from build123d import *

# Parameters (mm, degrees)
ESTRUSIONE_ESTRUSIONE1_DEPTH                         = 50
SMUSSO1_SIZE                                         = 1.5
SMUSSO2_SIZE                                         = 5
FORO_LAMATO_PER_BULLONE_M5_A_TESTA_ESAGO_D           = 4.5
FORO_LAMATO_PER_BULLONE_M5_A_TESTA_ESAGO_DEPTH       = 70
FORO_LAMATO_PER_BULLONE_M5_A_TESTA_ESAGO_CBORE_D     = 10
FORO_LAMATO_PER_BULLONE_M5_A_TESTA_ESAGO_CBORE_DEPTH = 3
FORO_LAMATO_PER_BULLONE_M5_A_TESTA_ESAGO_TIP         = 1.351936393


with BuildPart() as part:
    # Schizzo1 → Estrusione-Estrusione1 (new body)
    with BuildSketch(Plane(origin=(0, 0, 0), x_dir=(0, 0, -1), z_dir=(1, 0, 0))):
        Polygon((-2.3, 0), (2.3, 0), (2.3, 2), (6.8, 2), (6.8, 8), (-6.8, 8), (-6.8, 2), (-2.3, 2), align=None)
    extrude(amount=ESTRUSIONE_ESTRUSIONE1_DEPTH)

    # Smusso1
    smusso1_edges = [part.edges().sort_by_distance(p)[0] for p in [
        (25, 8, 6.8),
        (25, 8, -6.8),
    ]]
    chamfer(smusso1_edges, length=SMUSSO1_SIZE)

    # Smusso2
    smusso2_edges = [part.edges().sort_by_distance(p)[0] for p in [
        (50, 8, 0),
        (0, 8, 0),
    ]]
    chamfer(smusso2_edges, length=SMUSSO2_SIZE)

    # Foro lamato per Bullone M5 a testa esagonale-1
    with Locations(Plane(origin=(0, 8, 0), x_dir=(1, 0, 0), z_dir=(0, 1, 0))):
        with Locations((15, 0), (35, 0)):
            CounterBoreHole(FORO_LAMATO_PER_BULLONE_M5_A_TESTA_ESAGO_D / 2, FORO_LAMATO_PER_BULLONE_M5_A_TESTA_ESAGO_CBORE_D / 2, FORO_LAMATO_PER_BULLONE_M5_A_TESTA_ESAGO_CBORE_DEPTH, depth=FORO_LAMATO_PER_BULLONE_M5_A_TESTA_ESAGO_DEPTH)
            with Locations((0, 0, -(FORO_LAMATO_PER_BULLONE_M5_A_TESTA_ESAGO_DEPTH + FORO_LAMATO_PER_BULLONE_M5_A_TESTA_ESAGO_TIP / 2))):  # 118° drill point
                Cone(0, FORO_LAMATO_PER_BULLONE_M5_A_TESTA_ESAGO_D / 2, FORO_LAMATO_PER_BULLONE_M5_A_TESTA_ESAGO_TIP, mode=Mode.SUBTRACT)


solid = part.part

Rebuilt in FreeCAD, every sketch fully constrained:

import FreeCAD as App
import Part
import Sketcher

V = App.Vector


def edges_at(feature, points):
    """Names of the edges that pass closest to the given points."""
    edges = feature.Shape.Edges
    near = lambda p: min(range(len(edges)), key=lambda i: edges[i].distToShape(Part.Vertex(*p))[0])
    return sorted({f"Edge{near(p) + 1}" for p in points})


def add_polygon(sketch, points):
    """Adds a closed chain of lines whose ends are joined by coincident constraints."""
    first, n = sketch.GeometryCount, len(points)
    for a, b in zip(points, points[1:] + points[:1]):
        sketch.addGeometry(Part.LineSegment(App.Vector(*a, 0), App.Vector(*b, 0)), False)
    for i in range(n):
        sketch.addConstraint(Sketcher.Constraint("Coincident", first + i, 2, first + (i + 1) % n, 1))

doc = App.newDocument("Part")
body = doc.addObject("PartDesign::Body", "Body")

sketch1 = doc.addObject("Sketcher::SketchObject", "Sketch")
body.addObject(sketch1)
sketch1.AttachmentSupport = (doc.YZ_Plane, [""])
sketch1.MapMode = "FlatFace"
add_polygon(sketch1, [(0, 2.3), (0, -2.3), (2, -2.3), (2, -6.8), (8, -6.8), (8, 6.8), (2, 6.8), (2, 2.3)])
sketch1.addConstraint([
    Sketcher.Constraint("Vertical", 0),
    Sketcher.Constraint("Horizontal", 1),
    Sketcher.Constraint("Vertical", 2),
    Sketcher.Constraint("Horizontal", 3),
    Sketcher.Constraint("Vertical", 4),
    Sketcher.Constraint("Horizontal", 5),
    Sketcher.Constraint("Vertical", 6),
    Sketcher.Constraint("Horizontal", 7),
    Sketcher.Constraint("Symmetric", 0, 2, 7, 2, -1, 1),
    Sketcher.Constraint("Symmetric", 2, 2, 5, 2, -1),
    Sketcher.Constraint("DistanceX", 1, 1, 1, 2, 2.0),
    Sketcher.Constraint("DistanceX", 3, 1, 3, 2, 6.0),
    Sketcher.Constraint("DistanceY", 0, 2, 0, 1, 4.6),
    Sketcher.Constraint("DistanceY", 2, 2, 2, 1, 4.5),
])
pad1 = doc.addObject("PartDesign::Pad", "Pad")
body.addObject(pad1)
pad1.Profile = sketch1
pad1.Length = 50
doc.recompute()

chamfer = doc.addObject("PartDesign::Chamfer", "Chamfer")
body.addObject(chamfer)
chamfer.Base = (pad1, edges_at(pad1, [(25, 8, 6.8), (25, 8, -6.8)]))
chamfer.Size = 1.5
doc.recompute()

chamfer2 = doc.addObject("PartDesign::Chamfer", "Chamfer001")
body.addObject(chamfer2)
chamfer2.Base = (chamfer, edges_at(chamfer, [(50, 8, 0), (0, 8, 0)]))
chamfer2.Size = 5

sketch2 = doc.addObject("Sketcher::SketchObject", "Sketch001")
body.addObject(sketch2)
sketch2.AttachmentSupport = (doc.XZ_Plane, [""])
sketch2.MapMode = "FlatFace"
sketch2.AttachmentOffset = App.Placement(V(0, 0, -8), App.Rotation())
sketch2.addGeometry([
    Part.Circle(V(15, 0, 0), V(0, 0, 1), 2.25),
    Part.Circle(V(35, 0, 0), V(0, 0, 1), 2.25),
], False)
sketch2.addConstraint([
    Sketcher.Constraint("Equal", 0, 1),
    Sketcher.Constraint("PointOnObject", 0, 3, -1),
    Sketcher.Constraint("PointOnObject", 1, 3, -1),
    Sketcher.Constraint("Diameter", 0, 4.5),
    Sketcher.Constraint("DistanceX", -1, 1, 0, 3, 15.0),
    Sketcher.Constraint("DistanceX", -1, 1, 1, 3, 35.0),
])
doc.recompute()
hole = doc.addObject("PartDesign::Hole", "Hole")
body.addObject(hole)
hole.Profile = sketch2
hole.ThreadType = "None"
hole.Diameter = 4.5
hole.DepthType = "Dimension"
hole.Depth = 70
hole.DrillPoint = "Angled"
hole.DrillPointAngle = 118
hole.HoleCutType = "Counterbore"
hole.HoleCutDiameter = 10
hole.HoleCutDepth = 3
hole.Reversed = True

doc.recompute()
